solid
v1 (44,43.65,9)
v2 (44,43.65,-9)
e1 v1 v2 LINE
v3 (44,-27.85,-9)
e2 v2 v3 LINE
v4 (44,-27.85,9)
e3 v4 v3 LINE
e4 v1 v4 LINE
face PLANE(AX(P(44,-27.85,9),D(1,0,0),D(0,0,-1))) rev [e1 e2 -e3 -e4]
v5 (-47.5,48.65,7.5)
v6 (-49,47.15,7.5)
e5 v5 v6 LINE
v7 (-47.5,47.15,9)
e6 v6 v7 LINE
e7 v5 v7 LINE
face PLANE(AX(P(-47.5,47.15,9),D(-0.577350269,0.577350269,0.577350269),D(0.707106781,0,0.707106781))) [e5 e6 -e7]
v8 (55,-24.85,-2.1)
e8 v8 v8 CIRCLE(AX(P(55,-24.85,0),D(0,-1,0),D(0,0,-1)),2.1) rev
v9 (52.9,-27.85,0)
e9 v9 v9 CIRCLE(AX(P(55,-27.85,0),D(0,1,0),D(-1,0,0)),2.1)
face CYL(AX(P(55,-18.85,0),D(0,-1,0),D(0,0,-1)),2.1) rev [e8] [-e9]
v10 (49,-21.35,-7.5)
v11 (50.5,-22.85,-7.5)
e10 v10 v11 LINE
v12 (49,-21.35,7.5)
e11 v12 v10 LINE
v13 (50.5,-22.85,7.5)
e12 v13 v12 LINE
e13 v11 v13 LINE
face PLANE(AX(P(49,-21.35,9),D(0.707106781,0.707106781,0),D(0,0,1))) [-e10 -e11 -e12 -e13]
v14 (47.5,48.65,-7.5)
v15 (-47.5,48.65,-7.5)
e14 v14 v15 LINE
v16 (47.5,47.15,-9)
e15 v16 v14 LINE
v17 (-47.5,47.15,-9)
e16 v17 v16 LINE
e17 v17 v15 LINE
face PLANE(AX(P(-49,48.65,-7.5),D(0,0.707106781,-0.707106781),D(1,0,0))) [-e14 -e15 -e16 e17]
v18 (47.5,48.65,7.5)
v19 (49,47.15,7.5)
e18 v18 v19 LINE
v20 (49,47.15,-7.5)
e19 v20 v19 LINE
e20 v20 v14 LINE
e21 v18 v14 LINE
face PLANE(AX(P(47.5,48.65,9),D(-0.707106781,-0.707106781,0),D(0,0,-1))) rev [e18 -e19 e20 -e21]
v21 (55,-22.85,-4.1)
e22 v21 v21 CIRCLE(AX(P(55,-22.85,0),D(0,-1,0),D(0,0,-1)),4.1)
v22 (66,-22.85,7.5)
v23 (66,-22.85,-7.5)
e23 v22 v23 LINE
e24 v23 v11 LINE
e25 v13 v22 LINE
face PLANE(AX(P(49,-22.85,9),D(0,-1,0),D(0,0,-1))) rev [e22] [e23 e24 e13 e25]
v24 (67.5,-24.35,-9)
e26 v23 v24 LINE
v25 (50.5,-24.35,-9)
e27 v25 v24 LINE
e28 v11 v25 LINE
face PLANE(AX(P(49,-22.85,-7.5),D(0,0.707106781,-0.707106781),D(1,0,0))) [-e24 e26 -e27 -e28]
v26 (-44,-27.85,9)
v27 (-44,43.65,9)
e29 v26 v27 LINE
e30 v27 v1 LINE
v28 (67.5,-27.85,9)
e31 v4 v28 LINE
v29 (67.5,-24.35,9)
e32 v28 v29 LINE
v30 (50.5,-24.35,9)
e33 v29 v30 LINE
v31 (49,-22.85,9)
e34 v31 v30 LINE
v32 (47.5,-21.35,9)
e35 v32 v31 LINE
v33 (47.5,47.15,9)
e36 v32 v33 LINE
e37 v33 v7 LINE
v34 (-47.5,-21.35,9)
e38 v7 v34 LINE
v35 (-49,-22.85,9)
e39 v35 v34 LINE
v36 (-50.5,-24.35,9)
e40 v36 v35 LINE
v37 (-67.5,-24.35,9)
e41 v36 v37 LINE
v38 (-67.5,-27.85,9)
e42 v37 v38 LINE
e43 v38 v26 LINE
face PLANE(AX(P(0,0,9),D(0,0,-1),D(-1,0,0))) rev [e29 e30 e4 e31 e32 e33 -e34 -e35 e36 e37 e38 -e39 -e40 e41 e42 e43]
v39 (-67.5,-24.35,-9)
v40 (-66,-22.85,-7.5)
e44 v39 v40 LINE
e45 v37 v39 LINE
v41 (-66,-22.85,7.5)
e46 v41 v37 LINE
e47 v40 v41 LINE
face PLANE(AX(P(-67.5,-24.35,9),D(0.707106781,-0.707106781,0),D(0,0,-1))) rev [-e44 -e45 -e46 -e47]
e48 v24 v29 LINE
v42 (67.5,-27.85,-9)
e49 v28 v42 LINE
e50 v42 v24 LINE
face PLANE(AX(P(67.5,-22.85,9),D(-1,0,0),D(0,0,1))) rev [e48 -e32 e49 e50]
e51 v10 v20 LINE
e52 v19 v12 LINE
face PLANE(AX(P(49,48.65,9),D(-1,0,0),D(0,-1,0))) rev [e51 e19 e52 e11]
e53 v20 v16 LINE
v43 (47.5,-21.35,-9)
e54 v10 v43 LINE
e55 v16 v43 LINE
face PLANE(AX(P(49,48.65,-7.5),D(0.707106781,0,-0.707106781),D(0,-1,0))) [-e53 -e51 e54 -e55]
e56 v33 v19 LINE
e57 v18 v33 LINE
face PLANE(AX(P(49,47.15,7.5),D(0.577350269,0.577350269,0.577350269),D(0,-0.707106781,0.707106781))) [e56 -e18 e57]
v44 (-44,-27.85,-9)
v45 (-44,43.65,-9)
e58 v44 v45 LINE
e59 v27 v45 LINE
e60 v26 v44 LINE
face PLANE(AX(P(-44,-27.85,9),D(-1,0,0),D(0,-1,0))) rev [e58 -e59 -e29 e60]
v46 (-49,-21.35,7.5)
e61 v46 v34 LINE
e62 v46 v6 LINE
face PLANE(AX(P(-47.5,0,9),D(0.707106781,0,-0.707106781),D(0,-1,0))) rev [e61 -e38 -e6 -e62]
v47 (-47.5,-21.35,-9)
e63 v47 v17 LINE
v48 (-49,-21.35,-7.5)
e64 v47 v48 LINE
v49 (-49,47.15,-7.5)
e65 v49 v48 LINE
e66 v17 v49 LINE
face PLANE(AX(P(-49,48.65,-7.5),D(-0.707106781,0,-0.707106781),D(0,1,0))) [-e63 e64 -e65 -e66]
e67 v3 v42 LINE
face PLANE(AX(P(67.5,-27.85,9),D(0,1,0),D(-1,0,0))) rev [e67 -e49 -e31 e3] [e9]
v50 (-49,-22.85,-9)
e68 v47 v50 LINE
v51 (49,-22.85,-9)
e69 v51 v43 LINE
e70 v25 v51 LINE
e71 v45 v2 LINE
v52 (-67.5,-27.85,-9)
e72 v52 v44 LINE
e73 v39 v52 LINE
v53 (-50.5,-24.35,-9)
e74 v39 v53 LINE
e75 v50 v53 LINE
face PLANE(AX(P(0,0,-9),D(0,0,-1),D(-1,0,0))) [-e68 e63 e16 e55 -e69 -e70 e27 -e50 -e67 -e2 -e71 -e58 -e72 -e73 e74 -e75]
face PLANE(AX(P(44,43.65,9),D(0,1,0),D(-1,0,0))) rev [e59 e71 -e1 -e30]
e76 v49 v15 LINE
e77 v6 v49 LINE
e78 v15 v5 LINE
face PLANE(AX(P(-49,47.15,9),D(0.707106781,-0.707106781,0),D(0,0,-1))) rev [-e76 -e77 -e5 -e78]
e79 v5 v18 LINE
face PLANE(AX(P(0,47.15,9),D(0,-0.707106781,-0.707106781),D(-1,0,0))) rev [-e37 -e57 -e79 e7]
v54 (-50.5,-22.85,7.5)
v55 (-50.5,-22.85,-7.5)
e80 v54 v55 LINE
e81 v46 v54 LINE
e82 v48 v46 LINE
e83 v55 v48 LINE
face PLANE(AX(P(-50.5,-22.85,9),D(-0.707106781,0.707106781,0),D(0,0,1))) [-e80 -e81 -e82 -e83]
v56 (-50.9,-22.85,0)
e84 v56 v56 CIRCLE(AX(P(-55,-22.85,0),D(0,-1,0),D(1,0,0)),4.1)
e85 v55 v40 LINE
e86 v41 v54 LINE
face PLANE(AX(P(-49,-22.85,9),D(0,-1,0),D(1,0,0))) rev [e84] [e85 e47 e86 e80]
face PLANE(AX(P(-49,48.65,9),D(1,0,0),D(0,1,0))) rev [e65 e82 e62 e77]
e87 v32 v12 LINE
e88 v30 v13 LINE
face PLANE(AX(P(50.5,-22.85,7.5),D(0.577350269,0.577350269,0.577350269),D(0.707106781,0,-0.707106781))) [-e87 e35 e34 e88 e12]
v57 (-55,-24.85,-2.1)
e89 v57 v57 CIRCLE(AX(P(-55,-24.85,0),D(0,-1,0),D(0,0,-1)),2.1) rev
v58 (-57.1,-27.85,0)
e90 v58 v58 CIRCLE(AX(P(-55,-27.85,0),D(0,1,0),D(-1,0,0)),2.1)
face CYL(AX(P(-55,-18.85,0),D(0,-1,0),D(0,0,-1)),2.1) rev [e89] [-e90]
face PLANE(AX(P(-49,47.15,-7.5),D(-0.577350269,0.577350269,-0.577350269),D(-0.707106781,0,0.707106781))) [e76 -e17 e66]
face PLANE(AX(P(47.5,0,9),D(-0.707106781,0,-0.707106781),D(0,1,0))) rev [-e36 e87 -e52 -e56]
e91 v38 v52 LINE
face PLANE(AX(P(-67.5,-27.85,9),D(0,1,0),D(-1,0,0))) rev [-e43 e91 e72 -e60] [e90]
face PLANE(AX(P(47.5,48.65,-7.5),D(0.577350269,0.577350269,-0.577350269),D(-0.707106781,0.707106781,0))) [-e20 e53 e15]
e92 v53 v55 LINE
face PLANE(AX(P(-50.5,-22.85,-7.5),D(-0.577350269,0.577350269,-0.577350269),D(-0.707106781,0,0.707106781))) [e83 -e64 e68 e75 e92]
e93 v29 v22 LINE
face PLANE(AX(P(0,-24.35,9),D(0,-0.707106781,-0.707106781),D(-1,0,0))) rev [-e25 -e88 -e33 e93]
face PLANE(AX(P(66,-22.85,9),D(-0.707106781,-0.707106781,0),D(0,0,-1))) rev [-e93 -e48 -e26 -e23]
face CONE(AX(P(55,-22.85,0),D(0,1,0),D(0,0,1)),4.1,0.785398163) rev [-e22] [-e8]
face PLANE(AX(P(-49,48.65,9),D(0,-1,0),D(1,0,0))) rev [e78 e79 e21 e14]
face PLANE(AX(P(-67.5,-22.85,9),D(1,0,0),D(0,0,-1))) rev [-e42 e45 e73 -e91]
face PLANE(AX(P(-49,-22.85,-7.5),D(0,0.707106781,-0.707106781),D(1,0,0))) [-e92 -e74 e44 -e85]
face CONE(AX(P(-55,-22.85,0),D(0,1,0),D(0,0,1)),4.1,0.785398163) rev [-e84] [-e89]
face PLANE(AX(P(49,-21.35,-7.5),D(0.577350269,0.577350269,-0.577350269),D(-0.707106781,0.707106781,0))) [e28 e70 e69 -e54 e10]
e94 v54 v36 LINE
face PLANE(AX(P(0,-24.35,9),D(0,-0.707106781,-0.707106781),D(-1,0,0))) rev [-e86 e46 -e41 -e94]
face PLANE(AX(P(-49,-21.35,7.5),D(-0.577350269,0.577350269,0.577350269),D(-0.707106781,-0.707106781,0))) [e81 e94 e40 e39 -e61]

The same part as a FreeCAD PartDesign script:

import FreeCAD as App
import Part
import Sketcher

V = App.Vector
Q = App.Units.Quantity


def edges_at(feature, points):
    """Names of the edges that pass closest to the given points."""
    edges = feature.Shape.Edges
    near = lambda p: min(range(len(edges)), key=lambda i: edges[i].distToShape(Part.Vertex(*p))[0])
    return sorted({f"Edge{near(p) + 1}" for p in points})


def add_polygon(sketch, points):
    """Adds a closed chain of lines whose ends are joined by coincident constraints."""
    first, n = sketch.GeometryCount, len(points)
    for a, b in zip(points, points[1:] + points[:1]):
        sketch.addGeometry(Part.LineSegment(App.Vector(*a, 0), App.Vector(*b, 0)), False)
    for i in range(n):
        sketch.addConstraint(Sketcher.Constraint("Coincident", first + i, 2, first + (i + 1) % n, 1))

doc = App.newDocument("Part")
body = doc.addObject("PartDesign::Body", "Body")

# Sketch on XY plane
sketch1 = body.newObject("Sketcher::SketchObject", "Sketch")
sketch1.AttachmentSupport = (doc.getObject("XY_Plane"), [""])
sketch1.MapMode = "FlatFace"
add_polygon(sketch1, [(44, 44), (44, -28), (68, -28), (68, -23), (49, -23), (49, 49), (-49, 49), (-49, -23), (-68, -23), (-68, -28), (-44, -28), (-44, 44)])  # lines 0-11
sketch1.addConstraint([
    Sketcher.Constraint("Vertical", 0),
    Sketcher.Constraint("Horizontal", 1),
    Sketcher.Constraint("Vertical", 2),
    Sketcher.Constraint("Horizontal", 3),
    Sketcher.Constraint("Vertical", 4),
    Sketcher.Constraint("Horizontal", 5),
    Sketcher.Constraint("Vertical", 6),
    Sketcher.Constraint("Horizontal", 7),
    Sketcher.Constraint("Vertical", 8),
    Sketcher.Constraint("Horizontal", 9),
    Sketcher.Constraint("Vertical", 10),
    Sketcher.Constraint("Horizontal", 11),
    Sketcher.Constraint("Symmetric", 3, 2, 6, 2, -2),
    Sketcher.Constraint("Symmetric", 1, 2, 8, 2, -2),
    Sketcher.Constraint("Equal", 1, 9),
    Sketcher.Constraint("Equal", 0, 4),
    Sketcher.Constraint("DistanceX", 5, 2, 5, 1, Q("98 mm")),
    Sketcher.Constraint("DistanceX", 11, 1, 11, 2, Q("88 mm")),
    Sketcher.Constraint("DistanceY", 2, 1, 2, 2, Q("5 mm")),
    Sketcher.Constraint("DistanceX", 1, 1, 1, 2, Q("23.5 mm")),
    Sketcher.Constraint("DistanceY", 0, 2, 0, 1, Q("71.5 mm")),
    Sketcher.Constraint("DistanceY", 0, 2, -1, 1, Q("27.85 mm")),
])
pad1 = body.newObject("PartDesign::Pad", "Pad")
pad1.Profile = sketch1
pad1.Length = 18
pad1.Midplane = True

# Sketch on XZ plane
sketch2 = body.newObject("Sketcher::SketchObject", "Sketch001")
sketch2.AttachmentSupport = (doc.getObject("XZ_Plane"), [""])
sketch2.MapMode = "FlatFace"
sketch2.AttachmentOffset = App.Placement(V(0, 0, 27.85), App.Rotation())
sketch2.addGeometry([
    Part.Circle(V(55, 0, 0), V(0, 0, 1), 2.1),
    Part.Circle(V(-55, 0, 0), V(0, 0, 1), 2.1),
], False)
sketch2.addConstraint([
    Sketcher.Constraint("Equal", 0, 1),
    Sketcher.Constraint("Symmetric", 0, 3, 1, 3, -1, 1),
    Sketcher.Constraint("PointOnObject", 0, 3, -1),
    Sketcher.Constraint("Diameter", 0, Q("4.2 mm")),
    Sketcher.Constraint("DistanceX", -1, 1, 0, 3, Q("55 mm")),
])
pocket1 = body.newObject("PartDesign::Pocket", "Pocket")
pocket1.Profile = sketch2
pocket1.Length = 18
pocket1.Midplane = True
doc.recompute()

chamfer = body.newObject("PartDesign::Chamfer", "Chamfer")
chamfer.Base = (pocket1, edges_at(pocket1, [(55, -22.85, 2.1), (-52.9, -22.85, 0)]))
chamfer.Size = 2
doc.recompute()

chamfer2 = body.newObject("PartDesign::Chamfer", "Chamfer001")
chamfer2.Base = (chamfer, edges_at(chamfer, [
    (58.25, -22.85, 9),
    (-58.25, -22.85, -9),
    (-49, 12.9, -9),
    (0, 48.65, -9),
    (49, 12.9, -9),
    (58.25, -22.85, -9),
    (49, 12.9, 9),
    (0, 48.65, 9),
    (-67.5, -22.85, 0),
    (-49, -22.85, 0),
    (-49, 48.65, 0),
    (49, 48.65, 0),
    (49, -22.85, 0),
    (67.5, -22.85, 0),
    (-49, 12.9, 9),
    (-58.25, -22.85, 9),
]))
chamfer2.Size = 1.5

doc.recompute()
